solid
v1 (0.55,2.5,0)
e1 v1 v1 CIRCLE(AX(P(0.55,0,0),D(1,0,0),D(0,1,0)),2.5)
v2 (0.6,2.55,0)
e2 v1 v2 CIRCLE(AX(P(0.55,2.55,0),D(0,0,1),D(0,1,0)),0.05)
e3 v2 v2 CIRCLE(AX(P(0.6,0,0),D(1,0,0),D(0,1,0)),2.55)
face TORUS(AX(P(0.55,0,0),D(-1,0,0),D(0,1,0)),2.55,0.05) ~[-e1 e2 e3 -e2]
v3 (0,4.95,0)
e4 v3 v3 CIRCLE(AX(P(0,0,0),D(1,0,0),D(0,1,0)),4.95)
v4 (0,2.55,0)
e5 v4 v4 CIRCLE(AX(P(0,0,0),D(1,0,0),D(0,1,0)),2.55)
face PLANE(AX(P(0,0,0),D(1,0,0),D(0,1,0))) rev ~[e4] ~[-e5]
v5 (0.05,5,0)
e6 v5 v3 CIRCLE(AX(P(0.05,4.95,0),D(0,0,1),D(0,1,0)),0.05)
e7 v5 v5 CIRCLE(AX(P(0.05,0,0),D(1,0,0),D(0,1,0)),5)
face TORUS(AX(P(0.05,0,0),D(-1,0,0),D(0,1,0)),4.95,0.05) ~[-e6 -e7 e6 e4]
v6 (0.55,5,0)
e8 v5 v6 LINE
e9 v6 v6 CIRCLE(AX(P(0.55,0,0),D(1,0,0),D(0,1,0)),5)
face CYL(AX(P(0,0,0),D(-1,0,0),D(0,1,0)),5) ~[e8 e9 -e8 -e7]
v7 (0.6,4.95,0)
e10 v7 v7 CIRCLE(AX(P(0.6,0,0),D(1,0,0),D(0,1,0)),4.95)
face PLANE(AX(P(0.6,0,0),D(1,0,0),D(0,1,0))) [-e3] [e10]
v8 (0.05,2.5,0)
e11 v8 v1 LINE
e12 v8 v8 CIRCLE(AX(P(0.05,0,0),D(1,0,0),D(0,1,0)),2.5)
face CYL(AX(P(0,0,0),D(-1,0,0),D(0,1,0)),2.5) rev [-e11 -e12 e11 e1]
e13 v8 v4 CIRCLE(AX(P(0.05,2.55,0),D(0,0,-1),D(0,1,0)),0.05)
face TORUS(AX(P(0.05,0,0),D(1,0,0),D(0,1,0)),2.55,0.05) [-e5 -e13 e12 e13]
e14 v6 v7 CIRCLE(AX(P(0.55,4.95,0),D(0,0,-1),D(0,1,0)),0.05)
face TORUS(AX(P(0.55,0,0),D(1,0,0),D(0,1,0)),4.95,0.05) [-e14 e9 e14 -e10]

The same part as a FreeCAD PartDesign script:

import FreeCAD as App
import Part
import Sketcher

V = App.Vector
Q = App.Units.Quantity


def edges_at(feature, points):
    """Names of the edges that pass closest to the given points."""
    edges = feature.Shape.Edges
    near = lambda p: min(range(len(edges)), key=lambda i: edges[i].distToShape(Part.Vertex(*p))[0])
    return sorted({f"Edge{near(p) + 1}" for p in points})

doc = App.newDocument("Part")
body = doc.addObject("PartDesign::Body", "Body")

sketch1 = body.newObject("Sketcher::SketchObject", "Sketch")
sketch1.AttachmentSupport = (doc.getObject("YZ_Plane"), [""])
sketch1.MapMode = "FlatFace"
sketch1.addGeometry([
    Part.Circle(V(0, 0, 0), V(0, 0, 1), 5),
    Part.Circle(V(0, 0, 0), V(0, 0, 1), 2.5),
], False)
sketch1.addConstraint([
    Sketcher.Constraint("Coincident", 0, 3, -1, 1),
    Sketcher.Constraint("Coincident", 1, 3, -1, 1),
    Sketcher.Constraint("Diameter", 0, Q("10 mm")),
    Sketcher.Constraint("Diameter", 1, Q("5 mm")),
])
pad1 = body.newObject("PartDesign::Pad", "Pad")
pad1.Profile = sketch1
pad1.Length = 0.6
doc.recompute()

fillet = body.newObject("PartDesign::Fillet", "Fillet")
fillet.Base = (pad1, edges_at(pad1, [
    (0.6, -5, 0),
    (0, -5, 0),
    (0, -2.5, 0),
    (0.6, -2.5, 0),
]))
fillet.Radius = 0.05

doc.recompute()
